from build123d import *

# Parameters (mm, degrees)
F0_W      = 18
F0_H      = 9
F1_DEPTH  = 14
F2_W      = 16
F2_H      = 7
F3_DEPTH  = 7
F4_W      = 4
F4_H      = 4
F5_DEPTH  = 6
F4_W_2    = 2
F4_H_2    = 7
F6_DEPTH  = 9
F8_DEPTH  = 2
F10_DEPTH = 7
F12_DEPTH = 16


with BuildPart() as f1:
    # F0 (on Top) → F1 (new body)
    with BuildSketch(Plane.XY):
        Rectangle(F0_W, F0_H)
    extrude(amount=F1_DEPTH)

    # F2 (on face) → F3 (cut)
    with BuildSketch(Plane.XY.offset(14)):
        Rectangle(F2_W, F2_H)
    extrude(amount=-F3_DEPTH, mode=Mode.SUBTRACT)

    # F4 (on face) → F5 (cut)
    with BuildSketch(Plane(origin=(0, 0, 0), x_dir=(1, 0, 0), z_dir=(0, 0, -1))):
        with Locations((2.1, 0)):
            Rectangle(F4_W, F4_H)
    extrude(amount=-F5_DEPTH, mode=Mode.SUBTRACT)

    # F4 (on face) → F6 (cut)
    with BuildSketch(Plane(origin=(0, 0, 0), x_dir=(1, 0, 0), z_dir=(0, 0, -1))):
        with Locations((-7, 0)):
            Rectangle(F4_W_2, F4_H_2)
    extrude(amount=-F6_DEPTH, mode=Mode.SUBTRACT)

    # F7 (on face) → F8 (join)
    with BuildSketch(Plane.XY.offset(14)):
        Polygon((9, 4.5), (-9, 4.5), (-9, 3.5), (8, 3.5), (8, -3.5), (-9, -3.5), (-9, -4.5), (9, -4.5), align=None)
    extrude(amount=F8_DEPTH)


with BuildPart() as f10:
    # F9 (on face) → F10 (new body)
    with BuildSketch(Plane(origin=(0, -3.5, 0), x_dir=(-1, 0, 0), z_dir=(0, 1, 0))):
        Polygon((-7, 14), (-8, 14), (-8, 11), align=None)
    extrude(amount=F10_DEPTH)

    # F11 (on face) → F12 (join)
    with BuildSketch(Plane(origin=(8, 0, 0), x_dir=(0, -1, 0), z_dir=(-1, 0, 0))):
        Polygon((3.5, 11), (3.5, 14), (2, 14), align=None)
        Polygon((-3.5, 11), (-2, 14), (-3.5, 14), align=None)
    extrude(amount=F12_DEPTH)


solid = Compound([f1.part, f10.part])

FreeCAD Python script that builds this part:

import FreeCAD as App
import Part
import Sketcher
Q = App.Units.Quantity

doc = App.newDocument("Part")
body = doc.addObject("PartDesign::Body", "Body")

sketch1 = doc.addObject("Sketcher::SketchObject", "Sketch")
body.addObject(sketch1)
sketch1.AttachmentSupport = (doc.XY_Plane, [""])
sketch1.MapMode = "FlatFace"
sketch1.addGeometry([
    Part.LineSegment(App.Vector(-9, 4, 0), App.Vector(-9, -4, 0)),
    Part.LineSegment(App.Vector(-9, -4, 0), App.Vector(9, -4, 0)),
    Part.LineSegment(App.Vector(9, -4, 0), App.Vector(9, 4, 0)),
    Part.LineSegment(App.Vector(9, 4, 0), App.Vector(-9, 4, 0)),
], False)
sketch1.addConstraint([
    Sketcher.Constraint("Coincident", 0, 2, 1, 1),
    Sketcher.Constraint("Coincident", 1, 2, 2, 1),
    Sketcher.Constraint("Coincident", 2, 2, 3, 1),
    Sketcher.Constraint("Coincident", 3, 2, 0, 1),
    Sketcher.Constraint("Vertical", 0),
    Sketcher.Constraint("Horizontal", 1),
    Sketcher.Constraint("Vertical", 2),
    Sketcher.Constraint("Horizontal", 3),
    Sketcher.Constraint("Symmetric", 0, 2, 2, 2, -1, 1),
    Sketcher.Constraint("DistanceX", 1, 1, 1, 2, Q("18 mm")),
    Sketcher.Constraint("DistanceY", 0, 2, 0, 1, Q("9 mm")),
])
pad1 = doc.addObject("PartDesign::Pad", "Pad")
body.addObject(pad1)
pad1.Profile = sketch1
pad1.Length = 14

sketch2 = doc.addObject("Sketcher::SketchObject", "Sketch001")
body.addObject(sketch2)
sketch2.AttachmentSupport = (doc.XY_Plane, [""])
sketch2.MapMode = "FlatFace"
sketch2.AttachmentOffset = App.Placement(App.Vector(0, 0, 14), App.Rotation())
sketch2.addGeometry([
    Part.LineSegment(App.Vector(-8, 4, 0), App.Vector(-8, -4, 0)),
    Part.LineSegment(App.Vector(-8, -4, 0), App.Vector(8, -4, 0)),
    Part.LineSegment(App.Vector(8, -4, 0), App.Vector(8, 4, 0)),
    Part.LineSegment(App.Vector(8, 4, 0), App.Vector(-8, 4, 0)),
], False)
sketch2.addConstraint([
    Sketcher.Constraint("Coincident", 0, 2, 1, 1),
    Sketcher.Constraint("Coincident", 1, 2, 2, 1),
    Sketcher.Constraint("Coincident", 2, 2, 3, 1),
    Sketcher.Constraint("Coincident", 3, 2, 0, 1),
    Sketcher.Constraint("Vertical", 0),
    Sketcher.Constraint("Horizontal", 1),
    Sketcher.Constraint("Vertical", 2),
    Sketcher.Constraint("Horizontal", 3),
    Sketcher.Constraint("Symmetric", 0, 2, 2, 2, -1, 1),
    Sketcher.Constraint("DistanceX", 1, 1, 1, 2, Q("16 mm")),
    Sketcher.Constraint("DistanceY", 0, 2, 0, 1, Q("7 mm")),
])
pocket1 = doc.addObject("PartDesign::Pocket", "Pocket")
body.addObject(pocket1)
pocket1.Profile = sketch2
pocket1.Length = 7

sketch3 = doc.addObject("Sketcher::SketchObject", "Sketch002")
body.addObject(sketch3)
sketch3.AttachmentSupport = (doc.XY_Plane, [""])
sketch3.MapMode = "FlatFace"
sketch3.addGeometry([
    Part.LineSegment(App.Vector(0.1, -2, 0), App.Vector(0.1, 2, 0)),
    Part.LineSegment(App.Vector(0.1, 2, 0), App.Vector(4.1, 2, 0)),
    Part.LineSegment(App.Vector(4.1, 2, 0), App.Vector(4.1, -2, 0)),
    Part.LineSegment(App.Vector(4.1, -2, 0), App.Vector(0.1, -2, 0)),
], False)
sketch3.addConstraint([
    Sketcher.Constraint("Coincident", 0, 2, 1, 1),
    Sketcher.Constraint("Coincident", 1, 2, 2, 1),
    Sketcher.Constraint("Coincident", 2, 2, 3, 1),
    Sketcher.Constraint("Coincident", 3, 2, 0, 1),
    Sketcher.Constraint("Vertical", 0),
    Sketcher.Constraint("Horizontal", 1),
    Sketcher.Constraint("Vertical", 2),
    Sketcher.Constraint("Horizontal", 3),
    Sketcher.Constraint("Equal", 3, 0),
    Sketcher.Constraint("DistanceX", 1, 1, 1, 2, Q("4 mm")),
    Sketcher.Constraint("DistanceY", -1, 1, 0, 2, Q("2 mm")),
    Sketcher.Constraint("DistanceX", -1, 1, 0, 2, Q("0.1 mm")),
])
pocket2 = doc.addObject("PartDesign::Pocket", "Pocket001")
body.addObject(pocket2)
pocket2.Profile = sketch3
pocket2.Length = 6
pocket2.Reversed = True

sketch4 = doc.addObject("Sketcher::SketchObject", "Sketch003")
body.addObject(sketch4)
sketch4.AttachmentSupport = (doc.XY_Plane, [""])
sketch4.MapMode = "FlatFace"
sketch4.addGeometry([
    Part.LineSegment(App.Vector(-8, -3.5, 0), App.Vector(-8, 3.5, 0)),
    Part.LineSegment(App.Vector(-8, 3.5, 0), App.Vector(-6, 3.5, 0)),
    Part.LineSegment(App.Vector(-6, 3.5, 0), App.Vector(-6, -3.5, 0)),
    Part.LineSegment(App.Vector(-6, -3.5, 0), App.Vector(-8, -3.5, 0)),
], False)
sketch4.addConstraint([
    Sketcher.Constraint("Coincident", 0, 2, 1, 1),
    Sketcher.Constraint("Coincident", 1, 2, 2, 1),
    Sketcher.Constraint("Coincident", 2, 2, 3, 1),
    Sketcher.Constraint("Coincident", 3, 2, 0, 1),
    Sketcher.Constraint("Vertical", 0),
    Sketcher.Constraint("Horizontal", 1),
    Sketcher.Constraint("Vertical", 2),
    Sketcher.Constraint("Horizontal", 3),
    Sketcher.Constraint("DistanceX", 1, 1, 1, 2, Q("2 mm")),
    Sketcher.Constraint("DistanceY", 0, 1, 0, 2, Q("7 mm")),
    Sketcher.Constraint("DistanceX", 0, 2, -1, 1, Q("8 mm")),
    Sketcher.Constraint("DistanceY", -1, 1, 0, 2, Q("3.5 mm")),
])
pocket3 = doc.addObject("PartDesign::Pocket", "Pocket002")
body.addObject(pocket3)
pocket3.Profile = sketch4
pocket3.Length = 9
pocket3.Reversed = True

sketch5 = doc.addObject("Sketcher::SketchObject", "Sketch004")
body.addObject(sketch5)
sketch5.AttachmentSupport = (doc.XY_Plane, [""])
sketch5.MapMode = "FlatFace"
sketch5.AttachmentOffset = App.Placement(App.Vector(0, 0, 14), App.Rotation())
sketch5.addGeometry([
    Part.LineSegment(App.Vector(9, 4.5, 0), App.Vector(-9, 4.5, 0)),
    Part.LineSegment(App.Vector(-9, 4.5, 0), App.Vector(-9, 3.5, 0)),
    Part.LineSegment(App.Vector(-9, 3.5, 0), App.Vector(8, 3.5, 0)),
    Part.LineSegment(App.Vector(8, 3.5, 0), App.Vector(8, -3.5, 0)),
    Part.LineSegment(App.Vector(8, -3.5, 0), App.Vector(-9, -3.5, 0)),
    Part.LineSegment(App.Vector(-9, -3.5, 0), App.Vector(-9, -4.5, 0)),
    Part.LineSegment(App.Vector(-9, -4.5, 0), App.Vector(9, -4.5, 0)),
    Part.LineSegment(App.Vector(9, -4.5, 0), App.Vector(9, 4.5, 0)),
], False)
sketch5.addConstraint([
    Sketcher.Constraint("Coincident", 0, 2, 1, 1),
    Sketcher.Constraint("Coincident", 1, 2, 2, 1),
    Sketcher.Constraint("Coincident", 2, 2, 3, 1),
    Sketcher.Constraint("Coincident", 3, 2, 4, 1),
    Sketcher.Constraint("Coincident", 4, 2, 5, 1),
    Sketcher.Constraint("Coincident", 5, 2, 6, 1),
    Sketcher.Constraint("Coincident", 6, 2, 7, 1),
    Sketcher.Constraint("Coincident", 7, 2, 0, 1),
    Sketcher.Constraint("Horizontal", 0),
    Sketcher.Constraint("Vertical", 1),
    Sketcher.Constraint("Horizontal", 2),
    Sketcher.Constraint("Vertical", 3),
    Sketcher.Constraint("Horizontal", 4),
    Sketcher.Constraint("Vertical", 5),
    Sketcher.Constraint("Horizontal", 6),
    Sketcher.Constraint("Vertical", 7),
    Sketcher.Constraint("Symmetric", 0, 2, 6, 2, -1, 1),
    Sketcher.Constraint("Symmetric", 1, 2, 4, 2, -1),
    Sketcher.Constraint("DistanceX", 0, 2, 0, 1, Q("18 mm")),
    Sketcher.Constraint("DistanceX", 2, 1, 2, 2, Q("17 mm")),
    Sketcher.Constraint("DistanceY", 1, 2, 1, 1, Q("1 mm")),
    Sketcher.Constraint("DistanceY", 3, 2, 3, 1, Q("7 mm")),
])
pad2 = doc.addObject("PartDesign::Pad", "Pad001")
body.addObject(pad2)
pad2.Profile = sketch5
pad2.Length = 2
body2 = doc.addObject("PartDesign::Body", "Body001")

sketch6 = doc.addObject("Sketcher::SketchObject", "Sketch005")
body2.addObject(sketch6)
sketch6.AttachmentSupport = (doc.getObject("XZ_Plane001"), [""])
sketch6.MapMode = "FlatFace"
sketch6.AttachmentOffset = App.Placement(App.Vector(0, 0, 3.5), App.Rotation())
sketch6.addGeometry([
    Part.LineSegment(App.Vector(7, 14, 0), App.Vector(8, 14, 0)),
    Part.LineSegment(App.Vector(8, 14, 0), App.Vector(8, 11, 0)),
    Part.LineSegment(App.Vector(8, 11, 0), App.Vector(7, 14, 0)),
], False)
sketch6.addConstraint([
    Sketcher.Constraint("Coincident", 0, 2, 1, 1),
    Sketcher.Constraint("Coincident", 1, 2, 2, 1),
    Sketcher.Constraint("Coincident", 2, 2, 0, 1),
    Sketcher.Constraint("Horizontal", 0),
    Sketcher.Constraint("Vertical", 1),
    Sketcher.Constraint("DistanceX", 0, 1, 0, 2, Q("1 mm")),
    Sketcher.Constraint("DistanceY", 1, 2, 1, 1, Q("3 mm")),
    Sketcher.Constraint("DistanceX", -1, 1, 0, 2, Q("8 mm")),
    Sketcher.Constraint("DistanceY", -1, 1, 0, 2, Q("14 mm")),
])
pad3 = doc.addObject("PartDesign::Pad", "Pad002")
body2.addObject(pad3)
pad3.Profile = sketch6
pad3.Length = 7
pad3.Reversed = True

sketch7 = doc.addObject("Sketcher::SketchObject", "Sketch006")
body2.addObject(sketch7)
sketch7.AttachmentSupport = (doc.getObject("YZ_Plane001"), [""])
sketch7.MapMode = "FlatFace"
sketch7.AttachmentOffset = App.Placement(App.Vector(0, 0, 8), App.Rotation())
sketch7.addGeometry([
    Part.LineSegment(App.Vector(-3.5, 11, 0), App.Vector(-3.5, 14, 0)),
    Part.LineSegment(App.Vector(-3.5, 14, 0), App.Vector(-2, 14, 0)),
    Part.LineSegment(App.Vector(-2, 14, 0), App.Vector(-3.5, 11, 0)),
    Part.LineSegment(App.Vector(3.5, 11, 0), App.Vector(2, 14, 0)),
    Part.LineSegment(App.Vector(2, 14, 0), App.Vector(3.5, 14, 0)),
    Part.LineSegment(App.Vector(3.5, 14, 0), App.Vector(3.5, 11, 0)),
], False)
sketch7.addConstraint([
    Sketcher.Constraint("Coincident", 0, 2, 1, 1),
    Sketcher.Constraint("Coincident", 1, 2, 2, 1),
    Sketcher.Constraint("Coincident", 2, 2, 0, 1),
    Sketcher.Constraint("Coincident", 3, 2, 4, 1),
    Sketcher.Constraint("Coincident", 4, 2, 5, 1),
    Sketcher.Constraint("Coincident", 5, 2, 3, 1),
    Sketcher.Constraint("Vertical", 0),
    Sketcher.Constraint("Horizontal", 1),
    Sketcher.Constraint("Horizontal", 4),
    Sketcher.Constraint("Vertical", 5),
    Sketcher.Constraint("Symmetric", 1, 2, 3, 2, -2),
    Sketcher.Constraint("Symmetric", 2, 2, 5, 2, -2),
    Sketcher.Constraint("DistanceY", 0, 1, 0, 2, Q("3 mm")),
    Sketcher.Constraint("DistanceX", 1, 1, 1, 2, Q("1.5 mm")),
    Sketcher.Constraint("DistanceY", -1, 1, 0, 2, Q("14 mm")),
    Sketcher.Constraint("DistanceX", 1, 2, -1, 1, Q("2 mm")),
])
pad4 = doc.addObject("PartDesign::Pad", "Pad003")
body2.addObject(pad4)
pad4.Profile = sketch7
pad4.Length = 16
pad4.Reversed = True

doc.recompute()
